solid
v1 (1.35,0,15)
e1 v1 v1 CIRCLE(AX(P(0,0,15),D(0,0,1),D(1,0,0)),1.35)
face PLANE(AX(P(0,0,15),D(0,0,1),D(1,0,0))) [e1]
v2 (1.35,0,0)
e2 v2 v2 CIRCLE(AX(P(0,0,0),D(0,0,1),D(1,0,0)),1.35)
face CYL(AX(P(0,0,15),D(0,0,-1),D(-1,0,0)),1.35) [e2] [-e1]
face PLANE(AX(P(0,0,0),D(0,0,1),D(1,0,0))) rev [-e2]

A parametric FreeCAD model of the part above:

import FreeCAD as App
import Part
import Sketcher
from FreeCAD import Vector
Q = App.Units.Quantity

doc = App.newDocument("Part")
body = doc.addObject("PartDesign::Body", "Body")

# Sketch on XY plane
sketch1 = body.newObject("Sketcher::SketchObject", "Sketch")
sketch1.AttachmentSupport = (doc.getObject("XY_Plane"), [""])
sketch1.MapMode = "FlatFace"
sketch1.addGeometry(Part.Circle(Vector(0, 0, 0), Vector(0, 0, 1), 1.35), False)
sketch1.addConstraint(Sketcher.Constraint("Coincident", 0, 3, -1, 1))
sketch1.addConstraint(Sketcher.Constraint("Diameter", 0, Q("2.7 mm")))
pad1 = body.newObject("PartDesign::Pad", "Pad")
pad1.Profile = sketch1
pad1.Length = 15

doc.recompute()
